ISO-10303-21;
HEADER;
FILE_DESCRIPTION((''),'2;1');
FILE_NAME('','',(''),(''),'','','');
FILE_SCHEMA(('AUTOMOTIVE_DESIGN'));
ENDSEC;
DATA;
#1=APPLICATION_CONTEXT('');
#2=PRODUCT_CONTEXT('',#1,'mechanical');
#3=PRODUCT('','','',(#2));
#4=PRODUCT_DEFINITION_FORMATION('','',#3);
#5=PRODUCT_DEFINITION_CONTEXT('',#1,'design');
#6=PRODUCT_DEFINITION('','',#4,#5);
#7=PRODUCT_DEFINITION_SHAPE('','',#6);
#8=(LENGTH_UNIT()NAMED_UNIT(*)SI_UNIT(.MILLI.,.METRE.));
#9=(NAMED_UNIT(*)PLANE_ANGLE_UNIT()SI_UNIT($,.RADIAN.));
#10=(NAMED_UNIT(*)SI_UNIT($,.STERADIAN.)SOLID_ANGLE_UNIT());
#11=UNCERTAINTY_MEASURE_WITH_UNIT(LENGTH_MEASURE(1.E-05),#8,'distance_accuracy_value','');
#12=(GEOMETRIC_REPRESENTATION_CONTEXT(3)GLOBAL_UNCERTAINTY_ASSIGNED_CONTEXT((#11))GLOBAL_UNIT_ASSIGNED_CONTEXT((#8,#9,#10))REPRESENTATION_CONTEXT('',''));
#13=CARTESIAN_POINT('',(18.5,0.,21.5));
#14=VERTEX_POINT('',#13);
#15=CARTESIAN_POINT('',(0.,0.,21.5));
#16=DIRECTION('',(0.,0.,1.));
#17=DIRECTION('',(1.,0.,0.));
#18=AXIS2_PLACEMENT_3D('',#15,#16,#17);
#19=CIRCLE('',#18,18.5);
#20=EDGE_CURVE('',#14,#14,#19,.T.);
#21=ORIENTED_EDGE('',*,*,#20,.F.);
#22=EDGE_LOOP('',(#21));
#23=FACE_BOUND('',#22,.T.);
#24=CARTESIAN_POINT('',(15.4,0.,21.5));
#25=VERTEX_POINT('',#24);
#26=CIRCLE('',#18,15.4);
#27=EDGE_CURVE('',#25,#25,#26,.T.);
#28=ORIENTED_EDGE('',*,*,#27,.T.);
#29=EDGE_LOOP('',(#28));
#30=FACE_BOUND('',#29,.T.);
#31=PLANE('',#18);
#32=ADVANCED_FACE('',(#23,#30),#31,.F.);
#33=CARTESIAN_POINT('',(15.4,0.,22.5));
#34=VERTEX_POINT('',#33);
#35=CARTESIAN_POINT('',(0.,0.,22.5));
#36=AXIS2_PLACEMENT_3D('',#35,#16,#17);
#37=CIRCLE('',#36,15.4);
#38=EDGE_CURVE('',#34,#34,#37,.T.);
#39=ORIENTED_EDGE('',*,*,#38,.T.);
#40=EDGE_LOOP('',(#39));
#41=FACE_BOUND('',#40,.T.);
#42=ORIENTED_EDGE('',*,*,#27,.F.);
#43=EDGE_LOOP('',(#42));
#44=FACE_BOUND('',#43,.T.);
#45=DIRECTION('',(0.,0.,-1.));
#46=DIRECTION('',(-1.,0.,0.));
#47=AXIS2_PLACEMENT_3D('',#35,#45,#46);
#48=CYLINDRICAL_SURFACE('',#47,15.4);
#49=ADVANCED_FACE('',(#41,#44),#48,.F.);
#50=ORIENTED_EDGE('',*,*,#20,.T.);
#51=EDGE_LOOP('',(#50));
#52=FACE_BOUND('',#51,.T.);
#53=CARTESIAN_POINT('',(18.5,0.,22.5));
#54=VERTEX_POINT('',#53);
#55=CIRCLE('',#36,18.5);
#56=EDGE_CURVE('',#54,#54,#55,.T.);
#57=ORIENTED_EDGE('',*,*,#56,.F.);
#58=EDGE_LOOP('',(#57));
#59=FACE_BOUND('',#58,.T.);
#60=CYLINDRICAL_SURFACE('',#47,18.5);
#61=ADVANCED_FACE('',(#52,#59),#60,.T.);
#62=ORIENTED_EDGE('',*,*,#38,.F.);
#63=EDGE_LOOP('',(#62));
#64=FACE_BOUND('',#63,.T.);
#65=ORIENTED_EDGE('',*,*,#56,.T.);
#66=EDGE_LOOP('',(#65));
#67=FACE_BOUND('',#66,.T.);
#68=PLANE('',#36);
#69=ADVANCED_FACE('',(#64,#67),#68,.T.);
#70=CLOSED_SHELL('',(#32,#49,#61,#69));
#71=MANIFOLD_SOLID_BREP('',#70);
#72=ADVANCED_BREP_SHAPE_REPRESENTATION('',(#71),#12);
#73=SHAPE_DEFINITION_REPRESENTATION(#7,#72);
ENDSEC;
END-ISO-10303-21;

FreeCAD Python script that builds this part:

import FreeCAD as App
import Part
import Sketcher
from FreeCAD import Vector

doc = App.newDocument("Part")
body = doc.addObject("PartDesign::Body", "Body")

# Sketch on XY plane
sketch1 = doc.addObject("Sketcher::SketchObject", "Sketch")
body.addObject(sketch1)
sketch1.AttachmentSupport = (doc.XY_Plane, [""])
sketch1.MapMode = "FlatFace"
sketch1.AttachmentOffset = App.Placement(Vector(0, 0, 21.5), App.Rotation())
sketch1.addGeometry(Part.Circle(Vector(0, 0, 0), Vector(0, 0, 1), 18), False)
sketch1.addGeometry(Part.Circle(Vector(0, 0, 0), Vector(0, 0, 1), 15), False)
sketch1.addConstraint(Sketcher.Constraint("Coincident", 0, 3, -1, 1))
sketch1.addConstraint(Sketcher.Constraint("Coincident", 1, 3, -1, 1))
sketch1.addConstraint(Sketcher.Constraint("Diameter", 0, 37.0))
sketch1.addConstraint(Sketcher.Constraint("Diameter", 1, 30.8))
pad1 = doc.addObject("PartDesign::Pad", "Pad")
body.addObject(pad1)
pad1.Profile = sketch1
pad1.Length = 1

doc.recompute()
